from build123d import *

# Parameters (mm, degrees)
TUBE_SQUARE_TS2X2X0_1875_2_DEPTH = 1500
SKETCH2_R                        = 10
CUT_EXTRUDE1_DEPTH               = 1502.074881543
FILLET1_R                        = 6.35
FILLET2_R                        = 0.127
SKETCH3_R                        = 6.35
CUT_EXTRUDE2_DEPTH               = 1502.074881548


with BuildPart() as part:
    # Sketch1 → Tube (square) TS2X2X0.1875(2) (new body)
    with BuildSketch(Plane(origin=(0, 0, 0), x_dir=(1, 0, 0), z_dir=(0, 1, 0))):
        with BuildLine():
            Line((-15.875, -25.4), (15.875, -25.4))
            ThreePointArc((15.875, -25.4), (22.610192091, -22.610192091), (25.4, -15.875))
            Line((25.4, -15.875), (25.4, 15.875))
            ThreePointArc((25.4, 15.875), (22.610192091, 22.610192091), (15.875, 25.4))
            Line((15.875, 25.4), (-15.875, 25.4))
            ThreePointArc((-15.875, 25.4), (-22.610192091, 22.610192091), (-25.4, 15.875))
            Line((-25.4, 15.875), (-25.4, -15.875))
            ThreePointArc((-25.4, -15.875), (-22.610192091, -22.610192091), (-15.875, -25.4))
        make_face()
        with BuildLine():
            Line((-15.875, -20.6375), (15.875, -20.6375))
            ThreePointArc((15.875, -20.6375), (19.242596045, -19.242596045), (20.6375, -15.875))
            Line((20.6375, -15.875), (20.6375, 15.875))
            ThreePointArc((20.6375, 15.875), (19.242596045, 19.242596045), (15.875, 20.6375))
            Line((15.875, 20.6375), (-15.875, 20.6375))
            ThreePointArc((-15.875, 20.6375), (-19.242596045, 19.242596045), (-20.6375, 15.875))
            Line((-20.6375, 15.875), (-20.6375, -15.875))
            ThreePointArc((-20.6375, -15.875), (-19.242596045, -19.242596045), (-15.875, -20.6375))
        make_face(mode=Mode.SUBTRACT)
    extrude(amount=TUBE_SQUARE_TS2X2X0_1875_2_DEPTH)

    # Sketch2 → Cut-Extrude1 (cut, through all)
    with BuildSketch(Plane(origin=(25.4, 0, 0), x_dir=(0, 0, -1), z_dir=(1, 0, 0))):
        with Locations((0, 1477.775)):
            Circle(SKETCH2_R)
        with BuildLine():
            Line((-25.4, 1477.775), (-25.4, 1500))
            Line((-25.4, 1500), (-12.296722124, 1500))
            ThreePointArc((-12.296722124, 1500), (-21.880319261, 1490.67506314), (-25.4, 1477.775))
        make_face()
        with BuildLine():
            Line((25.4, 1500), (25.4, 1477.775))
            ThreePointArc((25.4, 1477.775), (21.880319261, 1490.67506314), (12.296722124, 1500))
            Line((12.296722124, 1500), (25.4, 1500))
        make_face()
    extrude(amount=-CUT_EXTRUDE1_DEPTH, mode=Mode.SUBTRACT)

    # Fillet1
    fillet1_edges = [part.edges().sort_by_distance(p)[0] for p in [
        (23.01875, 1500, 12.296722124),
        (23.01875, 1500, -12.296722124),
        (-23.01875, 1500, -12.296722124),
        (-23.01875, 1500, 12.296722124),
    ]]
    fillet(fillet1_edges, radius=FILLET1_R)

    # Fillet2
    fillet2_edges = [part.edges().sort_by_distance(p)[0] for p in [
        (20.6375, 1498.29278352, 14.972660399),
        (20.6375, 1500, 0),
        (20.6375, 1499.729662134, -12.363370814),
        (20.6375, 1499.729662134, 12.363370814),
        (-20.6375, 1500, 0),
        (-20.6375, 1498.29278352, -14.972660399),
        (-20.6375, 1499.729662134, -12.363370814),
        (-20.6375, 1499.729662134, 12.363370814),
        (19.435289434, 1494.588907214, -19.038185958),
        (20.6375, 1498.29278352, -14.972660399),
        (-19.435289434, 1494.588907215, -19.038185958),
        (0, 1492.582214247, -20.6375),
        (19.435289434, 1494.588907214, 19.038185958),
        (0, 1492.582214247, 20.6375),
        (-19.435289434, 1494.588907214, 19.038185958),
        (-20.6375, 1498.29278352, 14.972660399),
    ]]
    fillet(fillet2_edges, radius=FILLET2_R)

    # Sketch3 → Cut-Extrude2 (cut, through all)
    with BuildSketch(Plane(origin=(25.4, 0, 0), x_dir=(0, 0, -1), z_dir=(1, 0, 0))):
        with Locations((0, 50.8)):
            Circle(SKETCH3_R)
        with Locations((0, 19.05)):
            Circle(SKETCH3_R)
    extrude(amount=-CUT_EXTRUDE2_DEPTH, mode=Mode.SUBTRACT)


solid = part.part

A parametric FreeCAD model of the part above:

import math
import FreeCAD as App
import Part
import Sketcher
from FreeCAD import Vector
Q = App.Units.Quantity


def edges_at(feature, points):
    """Names of the edges that pass closest to the given points."""
    edges = feature.Shape.Edges
    near = lambda p: min(range(len(edges)), key=lambda i: edges[i].distToShape(Part.Vertex(*p))[0])
    return sorted({f"Edge{near(p) + 1}" for p in points})

doc = App.newDocument("Part")
body = doc.addObject("PartDesign::Body", "Body")

# Sketch on XZ plane
sketch1 = body.newObject("Sketcher::SketchObject", "Sketch")
sketch1.AttachmentSupport = (doc.getObject("XZ_Plane"), [""])
sketch1.MapMode = "FlatFace"
sketch1.addGeometry(Part.LineSegment(Vector(-15.9, 25.4, 0), Vector(15.9, 25.4, 0)), False)
sketch1.addGeometry(Part.ArcOfCircle(Part.Circle(Vector(15.9, 15.9, 0), Vector(0, 0, 1), 9.5), math.radians(0), math.radians(90)), False)
sketch1.addGeometry(Part.LineSegment(Vector(25.4, 15.9, 0), Vector(25.4, -15.9, 0)), False)
sketch1.addGeometry(Part.ArcOfCircle(Part.Circle(Vector(15.9, -15.9, 0), Vector(0, 0, 1), 9.5), math.radians(-90), math.radians(0)), False)
sketch1.addGeometry(Part.LineSegment(Vector(15.9, -25.4, 0), Vector(-15.9, -25.4, 0)), False)
sketch1.addGeometry(Part.ArcOfCircle(Part.Circle(Vector(-15.9, -15.9, 0), Vector(0, 0, 1), 9.5), math.radians(180), math.radians(270)), False)
sketch1.addGeometry(Part.LineSegment(Vector(-25.4, -15.9, 0), Vector(-25.4, 15.9, 0)), False)
sketch1.addGeometry(Part.ArcOfCircle(Part.Circle(Vector(-15.9, 15.9, 0), Vector(0, 0, 1), 9.5), math.radians(90), math.radians(180)), False)
sketch1.addGeometry(Part.LineSegment(Vector(15.9, 20.6, 0), Vector(-15.9, 20.6, 0)), False)
sketch1.addGeometry(Part.ArcOfCircle(Part.Circle(Vector(-15.9, 15.9, 0), Vector(0, 0, 1), 4.8), math.radians(90), math.radians(180)), False)
sketch1.addGeometry(Part.LineSegment(Vector(-20.6, 15.9, 0), Vector(-20.6, -15.9, 0)), False)
sketch1.addGeometry(Part.ArcOfCircle(Part.Circle(Vector(-15.9, -15.9, 0), Vector(0, 0, 1), 4.8), math.radians(-180), math.radians(-90)), False)
sketch1.addGeometry(Part.LineSegment(Vector(-15.9, -20.6, 0), Vector(15.9, -20.6, 0)), False)
sketch1.addGeometry(Part.ArcOfCircle(Part.Circle(Vector(15.9, -15.9, 0), Vector(0, 0, 1), 4.8), math.radians(-90), math.radians(0)), False)
sketch1.addGeometry(Part.LineSegment(Vector(20.6, -15.9, 0), Vector(20.6, 15.9, 0)), False)
sketch1.addGeometry(Part.ArcOfCircle(Part.Circle(Vector(15.9, 15.9, 0), Vector(0, 0, 1), 4.8), math.radians(0), math.radians(90)), False)
sketch1.addConstraint(Sketcher.Constraint("Tangent", 0, 2, 1, 2))
sketch1.addConstraint(Sketcher.Constraint("Tangent", 1, 1, 2, 1))
sketch1.addConstraint(Sketcher.Constraint("Tangent", 2, 2, 3, 2))
sketch1.addConstraint(Sketcher.Constraint("Tangent", 3, 1, 4, 1))
sketch1.addConstraint(Sketcher.Constraint("Tangent", 4, 2, 5, 2))
sketch1.addConstraint(Sketcher.Constraint("Tangent", 5, 1, 6, 1))
sketch1.addConstraint(Sketcher.Constraint("Tangent", 6, 2, 7, 2))
sketch1.addConstraint(Sketcher.Constraint("Tangent", 7, 1, 0, 1))
sketch1.addConstraint(Sketcher.Constraint("Tangent", 8, 2, 9, 1))
sketch1.addConstraint(Sketcher.Constraint("Tangent", 9, 2, 10, 1))
sketch1.addConstraint(Sketcher.Constraint("Tangent", 10, 2, 11, 1))
sketch1.addConstraint(Sketcher.Constraint("Tangent", 11, 2, 12, 1))
sketch1.addConstraint(Sketcher.Constraint("Tangent", 12, 2, 13, 1))
sketch1.addConstraint(Sketcher.Constraint("Tangent", 13, 2, 14, 1))
sketch1.addConstraint(Sketcher.Constraint("Tangent", 14, 2, 15, 1))
sketch1.addConstraint(Sketcher.Constraint("Tangent", 15, 2, 8, 1))
sketch1.addConstraint(Sketcher.Constraint("Horizontal", 0))
sketch1.addConstraint(Sketcher.Constraint("Vertical", 2))
sketch1.addConstraint(Sketcher.Constraint("Horizontal", 4))
sketch1.addConstraint(Sketcher.Constraint("Vertical", 6))
sketch1.addConstraint(Sketcher.Constraint("Horizontal", 8))
sketch1.addConstraint(Sketcher.Constraint("Vertical", 10))
sketch1.addConstraint(Sketcher.Constraint("Horizontal", 12))
sketch1.addConstraint(Sketcher.Constraint("Vertical", 14))
sketch1.addConstraint(Sketcher.Constraint("Coincident", 9, 3, 7, 3))
sketch1.addConstraint(Sketcher.Constraint("Coincident", 11, 3, 5, 3))
sketch1.addConstraint(Sketcher.Constraint("Coincident", 13, 3, 3, 3))
sketch1.addConstraint(Sketcher.Constraint("Equal", 1, 3))
sketch1.addConstraint(Sketcher.Constraint("Equal", 3, 5))
sketch1.addConstraint(Sketcher.Constraint("Equal", 5, 7))
sketch1.addConstraint(Sketcher.Constraint("Equal", 13, 15))
sketch1.addConstraint(Sketcher.Constraint("Symmetric", 1, 3, 5, 3, -1, 1))
sketch1.addConstraint(Sketcher.Constraint("Equal", 12, 2))
sketch1.addConstraint(Sketcher.Constraint("DistanceY", -1, 1, 0, 2, Q("1 in")))
sketch1.addConstraint(Sketcher.Constraint("Radius", 1, Q("0.375 in")))
sketch1.addConstraint(Sketcher.Constraint("Radius", 9, Q("0.1875 in")))
pad1 = body.newObject("PartDesign::Pad", "Pad")
pad1.Profile = sketch1
pad1.Length = 1500
pad1.Reversed = True

# Sketch on YZ plane
sketch2 = body.newObject("Sketcher::SketchObject", "Sketch001")
sketch2.AttachmentSupport = (doc.getObject("YZ_Plane"), [""])
sketch2.MapMode = "FlatFace"
sketch2.AttachmentOffset = App.Placement(Vector(0, 0, 1 * 25.4), App.Rotation())
sketch2.addGeometry(Part.Circle(Vector(1478, 0, 0), Vector(0, 0, 1), 10), False)
sketch2.addGeometry(Part.LineSegment(Vector(1500, 25, 0), Vector(1478, 25, 0)), False)
sketch2.addGeometry(Part.ArcOfCircle(Part.Circle(Vector(1478, 0, 0), Vector(0, 0, 1), 25), math.radians(29), math.radians(90)), False)
sketch2.addGeometry(Part.LineSegment(Vector(1500, 12, 0), Vector(1500, 25, 0)), False)
sketch2.addGeometry(Part.LineSegment(Vector(1478, -25, 0), Vector(1500, -25, 0)), False)
sketch2.addGeometry(Part.LineSegment(Vector(1500, -25, 0), Vector(1500, -12, 0)), False)
sketch2.addGeometry(Part.ArcOfCircle(Part.Circle(Vector(1478, 0, 0), Vector(0, 0, 1), 25), math.radians(-90), math.radians(-29)), False)
sketch2.addConstraint(Sketcher.Constraint("Tangent", 1, 2, 2, 2))
sketch2.addConstraint(Sketcher.Constraint("Coincident", 2, 1, 3, 1))
sketch2.addConstraint(Sketcher.Constraint("Coincident", 3, 2, 1, 1))
sketch2.addConstraint(Sketcher.Constraint("Coincident", 4, 2, 5, 1))
sketch2.addConstraint(Sketcher.Constraint("Coincident", 5, 2, 6, 2))
sketch2.addConstraint(Sketcher.Constraint("Tangent", 6, 1, 4, 1))
sketch2.addConstraint(Sketcher.Constraint("Horizontal", 1))
sketch2.addConstraint(Sketcher.Constraint("Vertical", 3))
sketch2.addConstraint(Sketcher.Constraint("Horizontal", 4))
sketch2.addConstraint(Sketcher.Constraint("Vertical", 5))
sketch2.addConstraint(Sketcher.Constraint("Coincident", 2, 3, 0, 3))
sketch2.addConstraint(Sketcher.Constraint("Coincident", 6, 3, 0, 3))
sketch2.addConstraint(Sketcher.Constraint("Equal", 2, 6))
sketch2.addConstraint(Sketcher.Constraint("Symmetric", 3, 2, 4, 2, -1))
sketch2.addConstraint(Sketcher.Constraint("Radius", 2, Q("1 in")))
sketch2.addConstraint(Sketcher.Constraint("Diameter", 0, 20.0))
sketch2.addConstraint(Sketcher.Constraint("DistanceX", 1, 2, 1, 1, Q("0.875 in")))
sketch2.addConstraint(Sketcher.Constraint("DistanceX", -1, 1, 0, 3, 1477.775))
pocket1 = body.newObject("PartDesign::Pocket", "Pocket")
pocket1.Profile = sketch2
pocket1.Type = "ThroughAll"
doc.recompute()

fillet = body.newObject("PartDesign::Fillet", "Fillet")
fillet.Base = (pocket1, edges_at(pocket1, [
    (23.019, 1500, 12.297),
    (23.019, 1500, -12.297),
    (-23.019, 1500, -12.297),
    (-23.019, 1500, 12.297),
]))
fillet.Radius = Q("0.25 in")
doc.recompute()

fillet2 = body.newObject("PartDesign::Fillet", "Fillet001")
fillet2.Base = (fillet, edges_at(fillet, [
    (20.637, 1498.293, 14.973),
    (20.637, 1500, 0),
    (20.637, 1499.73, -12.363),
    (20.637, 1499.73, 12.363),
    (-20.637, 1500, 0),
    (-20.637, 1498.293, -14.973),
    (-20.637, 1499.73, -12.363),
    (-20.637, 1499.73, 12.363),
    (19.435, 1494.589, -19.038),
    (20.637, 1498.293, -14.973),
    (-19.435, 1494.589, -19.038),
    (0, 1492.582, -20.637),
    (19.435, 1494.589, 19.038),
    (0, 1492.582, 20.637),
    (-19.435, 1494.589, 19.038),
    (-20.637, 1498.293, 14.973),
]))
fillet2.Radius = Q("0.005 in")

# Sketch on YZ plane
sketch3 = body.newObject("Sketcher::SketchObject", "Sketch002")
sketch3.AttachmentSupport = (doc.getObject("YZ_Plane"), [""])
sketch3.MapMode = "FlatFace"
sketch3.AttachmentOffset = App.Placement(Vector(0, 0, 1 * 25.4), App.Rotation())
sketch3.addGeometry(Part.Circle(Vector(51, 0, 0), Vector(0, 0, 1), 6), False)
sketch3.addGeometry(Part.Circle(Vector(19, 0, 0), Vector(0, 0, 1), 6), False)
sketch3.addConstraint(Sketcher.Constraint("Equal", 0, 1))
sketch3.addConstraint(Sketcher.Constraint("PointOnObject", 0, 3, -1))
sketch3.addConstraint(Sketcher.Constraint("PointOnObject", 1, 3, -1))
sketch3.addConstraint(Sketcher.Constraint("Diameter", 0, Q("0.5 in")))
sketch3.addConstraint(Sketcher.Constraint("DistanceX", -1, 1, 0, 3, Q("2 in")))
sketch3.addConstraint(Sketcher.Constraint("DistanceX", -1, 1, 1, 3, Q("0.75 in")))
pocket2 = body.newObject("PartDesign::Pocket", "Pocket001")
pocket2.Profile = sketch3
pocket2.Type = "ThroughAll"

doc.recompute()
